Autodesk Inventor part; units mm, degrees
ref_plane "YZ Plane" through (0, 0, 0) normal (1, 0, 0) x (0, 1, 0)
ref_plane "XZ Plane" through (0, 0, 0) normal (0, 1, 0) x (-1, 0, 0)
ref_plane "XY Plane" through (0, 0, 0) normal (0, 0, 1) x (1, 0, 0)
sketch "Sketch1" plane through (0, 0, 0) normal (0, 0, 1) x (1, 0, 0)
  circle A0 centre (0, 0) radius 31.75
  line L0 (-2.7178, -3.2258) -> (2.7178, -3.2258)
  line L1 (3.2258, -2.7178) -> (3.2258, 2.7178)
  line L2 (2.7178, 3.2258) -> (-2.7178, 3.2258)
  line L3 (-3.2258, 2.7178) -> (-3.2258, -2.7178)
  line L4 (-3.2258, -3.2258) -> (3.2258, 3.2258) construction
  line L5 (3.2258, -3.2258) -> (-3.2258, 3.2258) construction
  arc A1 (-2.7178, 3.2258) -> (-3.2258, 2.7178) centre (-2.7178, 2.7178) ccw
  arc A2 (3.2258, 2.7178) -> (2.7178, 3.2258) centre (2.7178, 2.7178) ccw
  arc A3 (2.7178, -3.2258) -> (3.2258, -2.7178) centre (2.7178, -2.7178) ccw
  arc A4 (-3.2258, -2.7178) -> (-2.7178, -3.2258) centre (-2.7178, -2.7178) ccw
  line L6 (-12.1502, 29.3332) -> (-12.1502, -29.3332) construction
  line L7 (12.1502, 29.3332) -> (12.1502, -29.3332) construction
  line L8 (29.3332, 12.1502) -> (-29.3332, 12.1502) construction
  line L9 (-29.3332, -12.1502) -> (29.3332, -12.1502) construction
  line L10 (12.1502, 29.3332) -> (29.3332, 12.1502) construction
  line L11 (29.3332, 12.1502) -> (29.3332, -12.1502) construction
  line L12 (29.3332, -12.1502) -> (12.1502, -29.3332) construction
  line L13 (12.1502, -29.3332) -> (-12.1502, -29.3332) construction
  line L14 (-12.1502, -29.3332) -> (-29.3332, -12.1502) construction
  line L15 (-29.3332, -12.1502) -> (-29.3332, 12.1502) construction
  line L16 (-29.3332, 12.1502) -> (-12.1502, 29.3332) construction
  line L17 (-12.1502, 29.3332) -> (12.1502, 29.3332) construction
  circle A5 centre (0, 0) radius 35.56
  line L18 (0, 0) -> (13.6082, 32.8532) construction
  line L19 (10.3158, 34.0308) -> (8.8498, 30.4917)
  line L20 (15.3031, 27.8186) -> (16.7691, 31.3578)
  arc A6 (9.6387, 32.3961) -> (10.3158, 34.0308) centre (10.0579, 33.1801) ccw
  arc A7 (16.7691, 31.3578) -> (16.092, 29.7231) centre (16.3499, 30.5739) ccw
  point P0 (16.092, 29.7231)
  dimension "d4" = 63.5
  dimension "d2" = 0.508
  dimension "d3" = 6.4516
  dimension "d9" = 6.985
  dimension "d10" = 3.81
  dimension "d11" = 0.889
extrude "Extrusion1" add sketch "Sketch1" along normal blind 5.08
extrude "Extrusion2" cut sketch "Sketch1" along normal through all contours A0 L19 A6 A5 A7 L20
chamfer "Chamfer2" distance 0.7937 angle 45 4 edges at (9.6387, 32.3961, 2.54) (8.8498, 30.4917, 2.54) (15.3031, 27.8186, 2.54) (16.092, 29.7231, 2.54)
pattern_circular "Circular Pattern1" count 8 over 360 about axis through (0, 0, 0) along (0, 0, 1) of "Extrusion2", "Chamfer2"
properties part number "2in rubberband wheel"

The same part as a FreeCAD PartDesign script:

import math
import FreeCAD as App
import Part
import Sketcher

V = App.Vector
Q = App.Units.Quantity


def edges_at(feature, points):
    """Names of the edges that pass closest to the given points."""
    edges = feature.Shape.Edges
    near = lambda p: min(range(len(edges)), key=lambda i: edges[i].distToShape(Part.Vertex(*p))[0])
    return sorted({f"Edge{near(p) + 1}" for p in points})

doc = App.newDocument("Part")
body = doc.addObject("PartDesign::Body", "Body")

# Sketch on XY plane
sketch1 = body.newObject("Sketcher::SketchObject", "Sketch")
sketch1.AttachmentSupport = (doc.getObject("XY_Plane"), [""])
sketch1.MapMode = "FlatFace"
sketch1.addGeometry([
    Part.Circle(V(0, 0, 0), V(0, 0, 1), 35.6),  # 0
    Part.LineSegment(V(2.7, -3.2, 0), V(-2.7, -3.2, 0)),  # 1
    Part.ArcOfCircle(Part.Circle(V(-2.7, -2.7, 0), V(0, 0, 1), 0.5), math.radians(180), math.radians(270)),  # 2
    Part.LineSegment(V(-3.2, -2.7, 0), V(-3.2, 2.7, 0)),  # 3
    Part.ArcOfCircle(Part.Circle(V(-2.7, 2.7, 0), V(0, 0, 1), 0.5), math.radians(90), math.radians(180)),  # 4
    Part.LineSegment(V(-2.7, 3.2, 0), V(2.7, 3.2, 0)),  # 5
    Part.ArcOfCircle(Part.Circle(V(2.7, 2.7, 0), V(0, 0, 1), 0.5), math.radians(0), math.radians(90)),  # 6
    Part.LineSegment(V(3.2, 2.7, 0), V(3.2, -2.7, 0)),  # 7
    Part.ArcOfCircle(Part.Circle(V(2.7, -2.7, 0), V(0, 0, 1), 0.5), math.radians(-90), math.radians(0)),  # 8
], False)
sketch1.addConstraint([
    Sketcher.Constraint("Tangent", 1, 2, 2, 2),
    Sketcher.Constraint("Tangent", 2, 1, 3, 1),
    Sketcher.Constraint("Tangent", 3, 2, 4, 2),
    Sketcher.Constraint("Tangent", 4, 1, 5, 1),
    Sketcher.Constraint("Tangent", 5, 2, 6, 2),
    Sketcher.Constraint("Tangent", 6, 1, 7, 1),
    Sketcher.Constraint("Tangent", 7, 2, 8, 2),
    Sketcher.Constraint("Tangent", 8, 1, 1, 1),
    Sketcher.Constraint("Horizontal", 1),
    Sketcher.Constraint("Vertical", 3),
    Sketcher.Constraint("Horizontal", 5),
    Sketcher.Constraint("Vertical", 7),
    Sketcher.Constraint("Coincident", 0, 3, -1, 1),
    Sketcher.Constraint("Equal", 2, 4),
    Sketcher.Constraint("Equal", 4, 6),
    Sketcher.Constraint("Equal", 6, 8),
    Sketcher.Constraint("Symmetric", 2, 3, 6, 3, -1, 1),
    Sketcher.Constraint("Equal", 5, 3),
    Sketcher.Constraint("Radius", 2, Q("0.02 in")),
    Sketcher.Constraint("Diameter", 0, Q("2.8 in")),
    Sketcher.Constraint("DistanceX", 1, 2, 1, 1, Q("0.214 in")),
])
pad1 = body.newObject("PartDesign::Pad", "Pad")
pad1.Profile = sketch1
pad1.Length = Q("0.2 in")

# Sketch on XY plane
sketch2 = body.newObject("Sketcher::SketchObject", "Sketch001")
sketch2.AttachmentSupport = (doc.getObject("XY_Plane"), [""])
sketch2.MapMode = "FlatFace"
sketch2.addGeometry([
    Part.ArcOfCircle(Part.Circle(V(0, 0, 0), V(0, 0, 1), 31.8), math.radians(61.18), math.radians(73.82)),  # 0
    Part.LineSegment(V(15.3, 27.8, 0), V(16.1, 29.7, 0)),  # 1
    Part.ArcOfCircle(Part.Circle(V(16.3, 30.6, 0), V(0, 0, 1), 0.9), math.radians(62), math.radians(253)),  # 2
    Part.ArcOfCircle(Part.Circle(V(0, 0, 0), V(0, 0, 1), 35.6), math.radians(61.86), math.radians(73.14)),  # 3
    Part.ArcOfCircle(Part.Circle(V(10.1, 33.2, 0), V(0, 0, 1), 0.9), math.radians(-118), math.radians(73)),  # 4
    Part.LineSegment(V(9.6, 32.4, 0), V(8.8, 30.5, 0)),  # 5
], False)
sketch2.addConstraint([
    Sketcher.Constraint("Coincident", 0, 1, 1, 1),
    Sketcher.Constraint("Coincident", 1, 2, 2, 2),
    Sketcher.Constraint("Tangent", 2, 1, 3, 1),
    Sketcher.Constraint("Tangent", 3, 2, 4, 2),
    Sketcher.Constraint("Coincident", 4, 1, 5, 1),
    Sketcher.Constraint("Coincident", 5, 2, 0, 2),
    Sketcher.Constraint("Coincident", 0, 3, -1, 1),
    Sketcher.Constraint("Coincident", 3, 3, -1, 1),
    Sketcher.Constraint("Equal", 2, 4),
    Sketcher.Constraint("Parallel", 1, 5),
    Sketcher.Constraint("Equal", 1, 5),
    Sketcher.Constraint("Radius", 0, Q("1.25 in")),
    Sketcher.Constraint("Radius", 2, Q("0.035 in")),
    Sketcher.Constraint("Radius", 3, Q("1.4 in")),
    Sketcher.Constraint("Angle", 1, Q("67.4998 deg")),
    Sketcher.Constraint("DistanceX", -1, 1, 2, 3, Q("0.6437 in")),
    Sketcher.Constraint("DistanceY", -1, 1, 4, 3, Q("1.3063 in")),
    Sketcher.Constraint("DistanceY", -1, 1, 1, 2, Q("1.1702 in")),
])
pocket1 = body.newObject("PartDesign::Pocket", "Pocket")
pocket1.Profile = sketch2
pocket1.Type = "ThroughAll"
pocket1.Reversed = True
doc.recompute()

chamfer = body.newObject("PartDesign::Chamfer", "Chamfer")
chamfer.Base = (pocket1, edges_at(pocket1, [
    (9.639, 32.396, 2.54),
    (8.85, 30.492, 2.54),
    (15.303, 27.819, 2.54),
    (16.092, 29.723, 2.54),
]))
chamfer.Size = Q("0.031248 in")
doc.recompute()

polarpattern = body.newObject("PartDesign::PolarPattern", "PolarPattern")
polarpattern.Originals = [pocket1, chamfer]
polarpattern.Axis = (doc.getObject("Z_Axis"), [""])
polarpattern.Angle = 360
polarpattern.Occurrences = 8
body.Tip = polarpattern

doc.recompute()
